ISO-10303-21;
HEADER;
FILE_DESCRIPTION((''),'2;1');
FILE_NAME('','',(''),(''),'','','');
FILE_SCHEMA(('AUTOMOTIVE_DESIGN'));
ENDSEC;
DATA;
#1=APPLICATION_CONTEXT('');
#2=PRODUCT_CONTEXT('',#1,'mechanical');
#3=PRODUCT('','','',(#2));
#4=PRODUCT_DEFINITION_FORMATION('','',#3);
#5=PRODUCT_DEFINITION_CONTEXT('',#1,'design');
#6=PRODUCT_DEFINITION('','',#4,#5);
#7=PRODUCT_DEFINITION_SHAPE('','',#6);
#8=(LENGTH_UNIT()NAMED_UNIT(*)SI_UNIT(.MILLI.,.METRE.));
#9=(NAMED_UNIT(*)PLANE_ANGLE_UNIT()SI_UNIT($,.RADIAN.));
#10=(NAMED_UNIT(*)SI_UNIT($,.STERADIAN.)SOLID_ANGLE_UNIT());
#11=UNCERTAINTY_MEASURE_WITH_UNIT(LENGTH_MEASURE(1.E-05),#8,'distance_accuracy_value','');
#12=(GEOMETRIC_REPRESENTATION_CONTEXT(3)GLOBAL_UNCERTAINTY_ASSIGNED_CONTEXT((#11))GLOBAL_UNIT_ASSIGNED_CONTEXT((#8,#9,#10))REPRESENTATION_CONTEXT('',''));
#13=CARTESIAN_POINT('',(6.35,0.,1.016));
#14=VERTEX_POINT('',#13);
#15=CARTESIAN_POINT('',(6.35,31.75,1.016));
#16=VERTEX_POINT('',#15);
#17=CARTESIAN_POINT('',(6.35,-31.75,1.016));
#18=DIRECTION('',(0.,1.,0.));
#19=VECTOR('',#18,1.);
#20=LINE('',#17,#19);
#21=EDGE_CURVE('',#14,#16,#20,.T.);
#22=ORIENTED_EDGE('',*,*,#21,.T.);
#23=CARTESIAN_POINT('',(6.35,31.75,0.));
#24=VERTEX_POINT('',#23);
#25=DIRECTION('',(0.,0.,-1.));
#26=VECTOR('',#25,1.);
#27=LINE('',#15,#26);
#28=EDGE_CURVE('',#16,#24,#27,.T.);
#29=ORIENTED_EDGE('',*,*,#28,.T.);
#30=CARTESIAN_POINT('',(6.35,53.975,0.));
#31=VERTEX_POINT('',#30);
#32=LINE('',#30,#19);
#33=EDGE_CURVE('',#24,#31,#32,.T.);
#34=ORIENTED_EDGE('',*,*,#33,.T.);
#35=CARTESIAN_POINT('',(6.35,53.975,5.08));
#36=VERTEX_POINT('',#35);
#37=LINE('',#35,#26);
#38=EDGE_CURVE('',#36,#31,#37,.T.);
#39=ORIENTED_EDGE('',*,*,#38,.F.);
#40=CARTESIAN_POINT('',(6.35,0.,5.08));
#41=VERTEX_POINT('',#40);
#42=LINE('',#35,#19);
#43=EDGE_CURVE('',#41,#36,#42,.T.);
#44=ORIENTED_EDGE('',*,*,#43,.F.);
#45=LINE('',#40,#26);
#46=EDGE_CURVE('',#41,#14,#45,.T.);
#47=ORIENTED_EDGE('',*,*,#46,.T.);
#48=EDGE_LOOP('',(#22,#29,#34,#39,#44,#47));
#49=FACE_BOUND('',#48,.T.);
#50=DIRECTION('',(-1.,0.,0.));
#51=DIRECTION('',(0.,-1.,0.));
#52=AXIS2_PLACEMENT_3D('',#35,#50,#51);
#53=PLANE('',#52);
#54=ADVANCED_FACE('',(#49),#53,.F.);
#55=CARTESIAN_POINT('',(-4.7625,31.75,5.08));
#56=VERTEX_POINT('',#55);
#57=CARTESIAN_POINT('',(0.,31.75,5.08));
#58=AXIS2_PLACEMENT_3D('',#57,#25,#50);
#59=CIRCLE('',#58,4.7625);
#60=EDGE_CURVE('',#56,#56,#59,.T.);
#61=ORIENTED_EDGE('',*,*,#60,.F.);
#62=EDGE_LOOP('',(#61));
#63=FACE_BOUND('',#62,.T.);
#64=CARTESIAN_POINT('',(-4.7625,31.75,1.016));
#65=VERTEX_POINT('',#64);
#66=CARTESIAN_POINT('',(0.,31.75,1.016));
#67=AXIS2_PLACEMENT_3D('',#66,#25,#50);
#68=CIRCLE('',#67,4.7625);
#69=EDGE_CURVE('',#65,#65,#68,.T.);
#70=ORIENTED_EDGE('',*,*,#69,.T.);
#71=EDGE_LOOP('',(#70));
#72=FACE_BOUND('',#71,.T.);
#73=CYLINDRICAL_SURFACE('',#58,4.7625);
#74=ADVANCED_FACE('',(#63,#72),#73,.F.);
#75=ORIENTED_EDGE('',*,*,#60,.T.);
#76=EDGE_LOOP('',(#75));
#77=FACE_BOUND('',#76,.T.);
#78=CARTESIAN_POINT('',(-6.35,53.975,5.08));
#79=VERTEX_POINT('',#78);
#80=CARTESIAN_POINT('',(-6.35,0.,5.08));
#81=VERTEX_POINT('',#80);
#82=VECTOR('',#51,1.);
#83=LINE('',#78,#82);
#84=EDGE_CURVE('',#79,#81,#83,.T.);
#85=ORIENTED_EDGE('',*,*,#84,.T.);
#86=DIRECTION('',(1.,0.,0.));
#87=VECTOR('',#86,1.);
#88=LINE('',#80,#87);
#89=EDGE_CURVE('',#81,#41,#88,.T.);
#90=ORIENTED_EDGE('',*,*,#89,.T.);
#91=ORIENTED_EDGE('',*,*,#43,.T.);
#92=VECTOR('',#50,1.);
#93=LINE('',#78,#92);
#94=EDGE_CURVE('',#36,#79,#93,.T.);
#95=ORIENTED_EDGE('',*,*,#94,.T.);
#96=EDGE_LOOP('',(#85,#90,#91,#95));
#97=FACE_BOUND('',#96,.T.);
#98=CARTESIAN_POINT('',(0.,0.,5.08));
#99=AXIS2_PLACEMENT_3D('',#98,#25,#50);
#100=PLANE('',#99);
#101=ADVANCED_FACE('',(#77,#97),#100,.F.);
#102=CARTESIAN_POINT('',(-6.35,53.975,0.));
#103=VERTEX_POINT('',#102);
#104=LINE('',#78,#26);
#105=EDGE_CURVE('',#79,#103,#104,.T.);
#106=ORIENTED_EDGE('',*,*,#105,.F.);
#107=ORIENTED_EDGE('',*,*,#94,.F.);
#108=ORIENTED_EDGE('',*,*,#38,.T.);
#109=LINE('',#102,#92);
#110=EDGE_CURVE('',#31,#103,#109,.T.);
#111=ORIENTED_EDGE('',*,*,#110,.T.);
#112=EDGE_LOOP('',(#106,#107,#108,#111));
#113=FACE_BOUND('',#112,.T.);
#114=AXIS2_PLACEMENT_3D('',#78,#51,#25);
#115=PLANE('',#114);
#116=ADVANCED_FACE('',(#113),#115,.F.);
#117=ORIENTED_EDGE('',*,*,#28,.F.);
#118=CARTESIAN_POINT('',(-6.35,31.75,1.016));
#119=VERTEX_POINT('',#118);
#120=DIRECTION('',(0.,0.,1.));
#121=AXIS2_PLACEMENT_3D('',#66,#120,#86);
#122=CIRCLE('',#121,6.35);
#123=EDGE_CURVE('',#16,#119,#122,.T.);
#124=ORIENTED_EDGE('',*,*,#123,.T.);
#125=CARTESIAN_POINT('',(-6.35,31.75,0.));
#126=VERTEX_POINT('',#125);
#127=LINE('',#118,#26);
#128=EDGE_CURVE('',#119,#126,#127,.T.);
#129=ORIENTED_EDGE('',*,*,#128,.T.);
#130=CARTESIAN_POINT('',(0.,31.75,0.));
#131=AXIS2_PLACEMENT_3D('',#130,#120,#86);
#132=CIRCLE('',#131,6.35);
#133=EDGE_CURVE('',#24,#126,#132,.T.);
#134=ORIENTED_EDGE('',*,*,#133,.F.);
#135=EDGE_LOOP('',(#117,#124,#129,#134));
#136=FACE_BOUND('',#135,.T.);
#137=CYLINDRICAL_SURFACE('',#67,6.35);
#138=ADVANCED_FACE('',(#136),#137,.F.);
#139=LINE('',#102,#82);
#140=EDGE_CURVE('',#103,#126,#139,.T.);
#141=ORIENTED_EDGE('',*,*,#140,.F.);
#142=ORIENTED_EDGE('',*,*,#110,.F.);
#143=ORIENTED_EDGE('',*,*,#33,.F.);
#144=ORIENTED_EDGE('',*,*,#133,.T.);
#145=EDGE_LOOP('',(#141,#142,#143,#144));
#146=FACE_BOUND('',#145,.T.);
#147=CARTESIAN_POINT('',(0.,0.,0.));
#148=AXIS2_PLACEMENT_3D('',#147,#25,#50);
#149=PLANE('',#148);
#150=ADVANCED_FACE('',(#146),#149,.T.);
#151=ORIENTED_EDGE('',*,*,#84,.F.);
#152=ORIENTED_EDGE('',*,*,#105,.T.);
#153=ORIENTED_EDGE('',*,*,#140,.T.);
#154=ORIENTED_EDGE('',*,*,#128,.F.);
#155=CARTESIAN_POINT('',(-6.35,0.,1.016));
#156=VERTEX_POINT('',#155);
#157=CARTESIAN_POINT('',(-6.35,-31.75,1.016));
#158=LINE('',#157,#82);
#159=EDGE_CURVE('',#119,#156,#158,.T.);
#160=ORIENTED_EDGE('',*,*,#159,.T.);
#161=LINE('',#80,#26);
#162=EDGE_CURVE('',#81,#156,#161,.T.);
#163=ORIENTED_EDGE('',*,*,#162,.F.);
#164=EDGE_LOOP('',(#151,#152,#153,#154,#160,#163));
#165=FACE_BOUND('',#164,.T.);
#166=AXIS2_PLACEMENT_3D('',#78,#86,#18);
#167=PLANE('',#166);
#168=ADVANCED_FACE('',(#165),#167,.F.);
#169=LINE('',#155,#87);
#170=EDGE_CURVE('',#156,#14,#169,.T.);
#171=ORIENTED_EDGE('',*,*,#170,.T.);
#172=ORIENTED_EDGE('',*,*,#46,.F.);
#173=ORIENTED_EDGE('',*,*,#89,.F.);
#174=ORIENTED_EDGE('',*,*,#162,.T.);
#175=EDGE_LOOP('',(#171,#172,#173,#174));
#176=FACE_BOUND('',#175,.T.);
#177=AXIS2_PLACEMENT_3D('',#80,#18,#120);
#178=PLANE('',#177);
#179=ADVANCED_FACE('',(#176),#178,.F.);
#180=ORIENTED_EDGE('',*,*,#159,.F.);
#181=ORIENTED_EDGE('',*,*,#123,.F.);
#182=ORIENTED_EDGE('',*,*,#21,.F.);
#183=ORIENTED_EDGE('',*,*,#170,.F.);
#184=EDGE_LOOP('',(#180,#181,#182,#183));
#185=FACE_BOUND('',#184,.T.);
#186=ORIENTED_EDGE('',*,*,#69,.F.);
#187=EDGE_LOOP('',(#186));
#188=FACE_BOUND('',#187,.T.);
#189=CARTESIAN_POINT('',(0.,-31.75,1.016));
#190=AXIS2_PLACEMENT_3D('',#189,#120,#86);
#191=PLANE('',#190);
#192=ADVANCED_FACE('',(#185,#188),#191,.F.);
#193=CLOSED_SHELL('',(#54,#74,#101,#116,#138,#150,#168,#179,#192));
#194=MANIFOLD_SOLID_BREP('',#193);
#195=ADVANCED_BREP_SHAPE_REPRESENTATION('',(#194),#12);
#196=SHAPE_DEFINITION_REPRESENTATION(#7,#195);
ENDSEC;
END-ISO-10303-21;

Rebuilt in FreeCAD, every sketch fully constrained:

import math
import FreeCAD as App
import Part
import Sketcher

V = App.Vector
Q = App.Units.Quantity


def add_polygon(sketch, points):
    """Adds a closed chain of lines whose ends are joined by coincident constraints."""
    first, n = sketch.GeometryCount, len(points)
    for a, b in zip(points, points[1:] + points[:1]):
        sketch.addGeometry(Part.LineSegment(App.Vector(*a, 0), App.Vector(*b, 0)), False)
    for i in range(n):
        sketch.addConstraint(Sketcher.Constraint("Coincident", first + i, 2, first + (i + 1) % n, 1))

doc = App.newDocument("Part")
body = doc.addObject("PartDesign::Body", "Body")

# Sketch on XY plane
sketch1 = body.newObject("Sketcher::SketchObject", "Sketch")
sketch1.AttachmentSupport = (doc.getObject("XY_Plane"), [""])
sketch1.MapMode = "FlatFace"
add_polygon(sketch1, [(-6.35, 53.975), (-6.35, 0), (6.35, 0), (6.35, 53.975)])  # lines 0-3
sketch1.addConstraint([
    Sketcher.Constraint("Vertical", 0),
    Sketcher.Constraint("Horizontal", 1),
    Sketcher.Constraint("Vertical", 2),
    Sketcher.Constraint("Horizontal", 3),
    Sketcher.Constraint("Symmetric", 0, 2, 1, 2, -1, 1),
    Sketcher.Constraint("DistanceX", 1, 1, 1, 2, Q("0.5 in")),
    Sketcher.Constraint("DistanceY", 0, 2, 0, 1, Q("2.125 in")),
])
pad1 = body.newObject("PartDesign::Pad", "Pad")
pad1.Profile = sketch1
pad1.Length = Q("0.2 in")

# Sketch on XY plane
sketch2 = body.newObject("Sketcher::SketchObject", "Sketch001")
sketch2.AttachmentSupport = (doc.getObject("XY_Plane"), [""])
sketch2.MapMode = "FlatFace"
sketch2.addGeometry([
    Part.LineSegment(V(-6.35, 31.75, 0), V(-6.35, -31.75, 0)),
    Part.ArcOfCircle(Part.Circle(V(0, -31.75, 0), V(0, 0, 1), 6.35), math.radians(180), math.radians(360)),
    Part.LineSegment(V(6.35, -31.75, 0), V(6.35, 31.75, 0)),
    Part.ArcOfCircle(Part.Circle(V(0, 31.75, 0), V(0, 0, 1), 6.35), math.radians(0), math.radians(180)),
], False)
sketch2.addConstraint([
    Sketcher.Constraint("Tangent", 0, 2, 1, 1),
    Sketcher.Constraint("Tangent", 1, 2, 2, 1),
    Sketcher.Constraint("Tangent", 2, 2, 3, 1),
    Sketcher.Constraint("Tangent", 3, 2, 0, 1),
    Sketcher.Constraint("Vertical", 0),
    Sketcher.Constraint("Vertical", 2),
    Sketcher.Constraint("Symmetric", 1, 3, 3, 3, -1, 1),
    Sketcher.Constraint("Radius", 1, Q("0.25 in")),
    Sketcher.Constraint("DistanceY", 0, 2, 0, 1, Q("2.5 in")),
])
pocket1 = body.newObject("PartDesign::Pocket", "Pocket")
pocket1.Profile = sketch2
pocket1.Length = Q("0.04 in")
pocket1.Reversed = True

# Sketch on XY plane
sketch3 = body.newObject("Sketcher::SketchObject", "Sketch002")
sketch3.AttachmentSupport = (doc.getObject("XY_Plane"), [""])
sketch3.MapMode = "FlatFace"
sketch3.AttachmentOffset = App.Placement(V(0, 0, 0.04 * 25.4), App.Rotation())
sketch3.addGeometry(Part.Circle(V(0, 31.75, 0), V(0, 0, 1), 4.7625), False)
sketch3.addConstraint([
    Sketcher.Constraint("PointOnObject", 0, 3, -2),
    Sketcher.Constraint("Diameter", 0, Q("0.375 in")),
    Sketcher.Constraint("DistanceY", -1, 1, 0, 3, Q("1.25 in")),
])
pocket2 = body.newObject("PartDesign::Pocket", "Pocket001")
pocket2.Profile = sketch3
pocket2.Type = "ThroughAll"
pocket2.Reversed = True

doc.recompute()
